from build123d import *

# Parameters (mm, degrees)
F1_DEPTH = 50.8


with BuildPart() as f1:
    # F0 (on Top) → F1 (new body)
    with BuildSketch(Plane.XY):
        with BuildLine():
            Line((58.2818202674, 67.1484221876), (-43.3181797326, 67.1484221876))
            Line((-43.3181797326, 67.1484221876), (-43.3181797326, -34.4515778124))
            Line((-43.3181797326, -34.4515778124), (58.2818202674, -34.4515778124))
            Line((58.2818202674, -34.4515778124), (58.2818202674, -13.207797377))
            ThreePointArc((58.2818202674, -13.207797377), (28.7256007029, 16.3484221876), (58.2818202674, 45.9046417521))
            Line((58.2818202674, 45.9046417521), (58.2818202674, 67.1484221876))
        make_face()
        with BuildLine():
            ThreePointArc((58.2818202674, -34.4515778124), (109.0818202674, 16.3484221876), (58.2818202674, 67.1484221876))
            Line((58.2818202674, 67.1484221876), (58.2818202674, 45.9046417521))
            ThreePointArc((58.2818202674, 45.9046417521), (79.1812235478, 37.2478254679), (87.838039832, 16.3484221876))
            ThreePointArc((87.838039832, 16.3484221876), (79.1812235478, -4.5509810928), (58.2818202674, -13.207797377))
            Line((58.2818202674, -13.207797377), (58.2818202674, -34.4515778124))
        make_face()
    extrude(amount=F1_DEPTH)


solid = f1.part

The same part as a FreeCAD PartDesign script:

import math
import FreeCAD as App
import Part
import Sketcher

V = App.Vector
Q = App.Units.Quantity

doc = App.newDocument("Part")
params = doc.addObject("Spreadsheet::Sheet", "Params")
for row, (alias, value) in enumerate([
    ("sketch1_radius", "2 in"),
    ("pad1_length", "2 in"),
], start=1):
    params.set(f"A{row}", alias)
    params.set(f"B{row}", "=" + value)
    params.setAlias(f"B{row}", alias)

body = doc.addObject("PartDesign::Body", "Body")

# Sketch on XY plane
sketch1 = body.newObject("Sketcher::SketchObject", "Sketch")
sketch1.AttachmentSupport = (doc.getObject("XY_Plane"), [""])
sketch1.MapMode = "FlatFace"
sketch1.addGeometry([
    Part.LineSegment(V(58, 67, 0), V(-43, 67, 0)),  # 0
    Part.LineSegment(V(-43, 67, 0), V(-43, -34, 0)),  # 1
    Part.LineSegment(V(-43, -34, 0), V(58, -34, 0)),  # 2
    Part.ArcOfCircle(Part.Circle(V(58, 16, 0), V(0, 0, 1), 51), math.radians(-90), math.radians(90)),  # 3
    Part.ArcOfCircle(Part.Circle(V(58, 16, 0), V(0, 0, 1), 30), math.radians(90), math.radians(270)),  # 4
    Part.ArcOfCircle(Part.Circle(V(58, 16, 0), V(0, 0, 1), 30), math.radians(0), math.radians(90)),  # 5
    Part.ArcOfCircle(Part.Circle(V(58, 16, 0), V(0, 0, 1), 30), math.radians(-90), math.radians(0)),  # 6
], False)
sketch1.addConstraint([
    Sketcher.Constraint("Coincident", 0, 2, 1, 1),
    Sketcher.Constraint("Coincident", 1, 2, 2, 1),
    Sketcher.Constraint("Tangent", 2, 2, 3, 1),
    Sketcher.Constraint("Tangent", 3, 2, 0, 1),
    Sketcher.Constraint("Tangent", 4, 1, 5, 2),
    Sketcher.Constraint("Tangent", 5, 1, 6, 2),
    Sketcher.Constraint("Tangent", 6, 1, 4, 2),
    Sketcher.Constraint("Horizontal", 0),
    Sketcher.Constraint("Vertical", 1),
    Sketcher.Constraint("Horizontal", 2),
    Sketcher.Constraint("Coincident", 4, 3, 3, 3),
    Sketcher.Constraint("Horizontal", 6, 3, 5, 1),
    Sketcher.Constraint("Vertical", 3, 2, 4, 1),
    Sketcher.Constraint("Vertical", 4, 1, 6, 1),
    Sketcher.Constraint("Equal", 2, 1),
    Sketcher.Constraint("Radius", 3, Q("2 in")),
    Sketcher.Constraint("Radius", 4, Q("29.55622 mm")),
    Sketcher.Constraint("DistanceX", -1, 1, 3, 3, Q("58.28182 mm")),
    Sketcher.Constraint("DistanceY", -1, 1, 4, 1, Q("45.904642 mm")),
])
sketch1.setExpression("Constraints[15]", "Params.sketch1_radius")
pad1 = body.newObject("PartDesign::Pad", "Pad")
pad1.Profile = sketch1
pad1.setExpression("Length", "Params.pad1_length")

doc.recompute()
